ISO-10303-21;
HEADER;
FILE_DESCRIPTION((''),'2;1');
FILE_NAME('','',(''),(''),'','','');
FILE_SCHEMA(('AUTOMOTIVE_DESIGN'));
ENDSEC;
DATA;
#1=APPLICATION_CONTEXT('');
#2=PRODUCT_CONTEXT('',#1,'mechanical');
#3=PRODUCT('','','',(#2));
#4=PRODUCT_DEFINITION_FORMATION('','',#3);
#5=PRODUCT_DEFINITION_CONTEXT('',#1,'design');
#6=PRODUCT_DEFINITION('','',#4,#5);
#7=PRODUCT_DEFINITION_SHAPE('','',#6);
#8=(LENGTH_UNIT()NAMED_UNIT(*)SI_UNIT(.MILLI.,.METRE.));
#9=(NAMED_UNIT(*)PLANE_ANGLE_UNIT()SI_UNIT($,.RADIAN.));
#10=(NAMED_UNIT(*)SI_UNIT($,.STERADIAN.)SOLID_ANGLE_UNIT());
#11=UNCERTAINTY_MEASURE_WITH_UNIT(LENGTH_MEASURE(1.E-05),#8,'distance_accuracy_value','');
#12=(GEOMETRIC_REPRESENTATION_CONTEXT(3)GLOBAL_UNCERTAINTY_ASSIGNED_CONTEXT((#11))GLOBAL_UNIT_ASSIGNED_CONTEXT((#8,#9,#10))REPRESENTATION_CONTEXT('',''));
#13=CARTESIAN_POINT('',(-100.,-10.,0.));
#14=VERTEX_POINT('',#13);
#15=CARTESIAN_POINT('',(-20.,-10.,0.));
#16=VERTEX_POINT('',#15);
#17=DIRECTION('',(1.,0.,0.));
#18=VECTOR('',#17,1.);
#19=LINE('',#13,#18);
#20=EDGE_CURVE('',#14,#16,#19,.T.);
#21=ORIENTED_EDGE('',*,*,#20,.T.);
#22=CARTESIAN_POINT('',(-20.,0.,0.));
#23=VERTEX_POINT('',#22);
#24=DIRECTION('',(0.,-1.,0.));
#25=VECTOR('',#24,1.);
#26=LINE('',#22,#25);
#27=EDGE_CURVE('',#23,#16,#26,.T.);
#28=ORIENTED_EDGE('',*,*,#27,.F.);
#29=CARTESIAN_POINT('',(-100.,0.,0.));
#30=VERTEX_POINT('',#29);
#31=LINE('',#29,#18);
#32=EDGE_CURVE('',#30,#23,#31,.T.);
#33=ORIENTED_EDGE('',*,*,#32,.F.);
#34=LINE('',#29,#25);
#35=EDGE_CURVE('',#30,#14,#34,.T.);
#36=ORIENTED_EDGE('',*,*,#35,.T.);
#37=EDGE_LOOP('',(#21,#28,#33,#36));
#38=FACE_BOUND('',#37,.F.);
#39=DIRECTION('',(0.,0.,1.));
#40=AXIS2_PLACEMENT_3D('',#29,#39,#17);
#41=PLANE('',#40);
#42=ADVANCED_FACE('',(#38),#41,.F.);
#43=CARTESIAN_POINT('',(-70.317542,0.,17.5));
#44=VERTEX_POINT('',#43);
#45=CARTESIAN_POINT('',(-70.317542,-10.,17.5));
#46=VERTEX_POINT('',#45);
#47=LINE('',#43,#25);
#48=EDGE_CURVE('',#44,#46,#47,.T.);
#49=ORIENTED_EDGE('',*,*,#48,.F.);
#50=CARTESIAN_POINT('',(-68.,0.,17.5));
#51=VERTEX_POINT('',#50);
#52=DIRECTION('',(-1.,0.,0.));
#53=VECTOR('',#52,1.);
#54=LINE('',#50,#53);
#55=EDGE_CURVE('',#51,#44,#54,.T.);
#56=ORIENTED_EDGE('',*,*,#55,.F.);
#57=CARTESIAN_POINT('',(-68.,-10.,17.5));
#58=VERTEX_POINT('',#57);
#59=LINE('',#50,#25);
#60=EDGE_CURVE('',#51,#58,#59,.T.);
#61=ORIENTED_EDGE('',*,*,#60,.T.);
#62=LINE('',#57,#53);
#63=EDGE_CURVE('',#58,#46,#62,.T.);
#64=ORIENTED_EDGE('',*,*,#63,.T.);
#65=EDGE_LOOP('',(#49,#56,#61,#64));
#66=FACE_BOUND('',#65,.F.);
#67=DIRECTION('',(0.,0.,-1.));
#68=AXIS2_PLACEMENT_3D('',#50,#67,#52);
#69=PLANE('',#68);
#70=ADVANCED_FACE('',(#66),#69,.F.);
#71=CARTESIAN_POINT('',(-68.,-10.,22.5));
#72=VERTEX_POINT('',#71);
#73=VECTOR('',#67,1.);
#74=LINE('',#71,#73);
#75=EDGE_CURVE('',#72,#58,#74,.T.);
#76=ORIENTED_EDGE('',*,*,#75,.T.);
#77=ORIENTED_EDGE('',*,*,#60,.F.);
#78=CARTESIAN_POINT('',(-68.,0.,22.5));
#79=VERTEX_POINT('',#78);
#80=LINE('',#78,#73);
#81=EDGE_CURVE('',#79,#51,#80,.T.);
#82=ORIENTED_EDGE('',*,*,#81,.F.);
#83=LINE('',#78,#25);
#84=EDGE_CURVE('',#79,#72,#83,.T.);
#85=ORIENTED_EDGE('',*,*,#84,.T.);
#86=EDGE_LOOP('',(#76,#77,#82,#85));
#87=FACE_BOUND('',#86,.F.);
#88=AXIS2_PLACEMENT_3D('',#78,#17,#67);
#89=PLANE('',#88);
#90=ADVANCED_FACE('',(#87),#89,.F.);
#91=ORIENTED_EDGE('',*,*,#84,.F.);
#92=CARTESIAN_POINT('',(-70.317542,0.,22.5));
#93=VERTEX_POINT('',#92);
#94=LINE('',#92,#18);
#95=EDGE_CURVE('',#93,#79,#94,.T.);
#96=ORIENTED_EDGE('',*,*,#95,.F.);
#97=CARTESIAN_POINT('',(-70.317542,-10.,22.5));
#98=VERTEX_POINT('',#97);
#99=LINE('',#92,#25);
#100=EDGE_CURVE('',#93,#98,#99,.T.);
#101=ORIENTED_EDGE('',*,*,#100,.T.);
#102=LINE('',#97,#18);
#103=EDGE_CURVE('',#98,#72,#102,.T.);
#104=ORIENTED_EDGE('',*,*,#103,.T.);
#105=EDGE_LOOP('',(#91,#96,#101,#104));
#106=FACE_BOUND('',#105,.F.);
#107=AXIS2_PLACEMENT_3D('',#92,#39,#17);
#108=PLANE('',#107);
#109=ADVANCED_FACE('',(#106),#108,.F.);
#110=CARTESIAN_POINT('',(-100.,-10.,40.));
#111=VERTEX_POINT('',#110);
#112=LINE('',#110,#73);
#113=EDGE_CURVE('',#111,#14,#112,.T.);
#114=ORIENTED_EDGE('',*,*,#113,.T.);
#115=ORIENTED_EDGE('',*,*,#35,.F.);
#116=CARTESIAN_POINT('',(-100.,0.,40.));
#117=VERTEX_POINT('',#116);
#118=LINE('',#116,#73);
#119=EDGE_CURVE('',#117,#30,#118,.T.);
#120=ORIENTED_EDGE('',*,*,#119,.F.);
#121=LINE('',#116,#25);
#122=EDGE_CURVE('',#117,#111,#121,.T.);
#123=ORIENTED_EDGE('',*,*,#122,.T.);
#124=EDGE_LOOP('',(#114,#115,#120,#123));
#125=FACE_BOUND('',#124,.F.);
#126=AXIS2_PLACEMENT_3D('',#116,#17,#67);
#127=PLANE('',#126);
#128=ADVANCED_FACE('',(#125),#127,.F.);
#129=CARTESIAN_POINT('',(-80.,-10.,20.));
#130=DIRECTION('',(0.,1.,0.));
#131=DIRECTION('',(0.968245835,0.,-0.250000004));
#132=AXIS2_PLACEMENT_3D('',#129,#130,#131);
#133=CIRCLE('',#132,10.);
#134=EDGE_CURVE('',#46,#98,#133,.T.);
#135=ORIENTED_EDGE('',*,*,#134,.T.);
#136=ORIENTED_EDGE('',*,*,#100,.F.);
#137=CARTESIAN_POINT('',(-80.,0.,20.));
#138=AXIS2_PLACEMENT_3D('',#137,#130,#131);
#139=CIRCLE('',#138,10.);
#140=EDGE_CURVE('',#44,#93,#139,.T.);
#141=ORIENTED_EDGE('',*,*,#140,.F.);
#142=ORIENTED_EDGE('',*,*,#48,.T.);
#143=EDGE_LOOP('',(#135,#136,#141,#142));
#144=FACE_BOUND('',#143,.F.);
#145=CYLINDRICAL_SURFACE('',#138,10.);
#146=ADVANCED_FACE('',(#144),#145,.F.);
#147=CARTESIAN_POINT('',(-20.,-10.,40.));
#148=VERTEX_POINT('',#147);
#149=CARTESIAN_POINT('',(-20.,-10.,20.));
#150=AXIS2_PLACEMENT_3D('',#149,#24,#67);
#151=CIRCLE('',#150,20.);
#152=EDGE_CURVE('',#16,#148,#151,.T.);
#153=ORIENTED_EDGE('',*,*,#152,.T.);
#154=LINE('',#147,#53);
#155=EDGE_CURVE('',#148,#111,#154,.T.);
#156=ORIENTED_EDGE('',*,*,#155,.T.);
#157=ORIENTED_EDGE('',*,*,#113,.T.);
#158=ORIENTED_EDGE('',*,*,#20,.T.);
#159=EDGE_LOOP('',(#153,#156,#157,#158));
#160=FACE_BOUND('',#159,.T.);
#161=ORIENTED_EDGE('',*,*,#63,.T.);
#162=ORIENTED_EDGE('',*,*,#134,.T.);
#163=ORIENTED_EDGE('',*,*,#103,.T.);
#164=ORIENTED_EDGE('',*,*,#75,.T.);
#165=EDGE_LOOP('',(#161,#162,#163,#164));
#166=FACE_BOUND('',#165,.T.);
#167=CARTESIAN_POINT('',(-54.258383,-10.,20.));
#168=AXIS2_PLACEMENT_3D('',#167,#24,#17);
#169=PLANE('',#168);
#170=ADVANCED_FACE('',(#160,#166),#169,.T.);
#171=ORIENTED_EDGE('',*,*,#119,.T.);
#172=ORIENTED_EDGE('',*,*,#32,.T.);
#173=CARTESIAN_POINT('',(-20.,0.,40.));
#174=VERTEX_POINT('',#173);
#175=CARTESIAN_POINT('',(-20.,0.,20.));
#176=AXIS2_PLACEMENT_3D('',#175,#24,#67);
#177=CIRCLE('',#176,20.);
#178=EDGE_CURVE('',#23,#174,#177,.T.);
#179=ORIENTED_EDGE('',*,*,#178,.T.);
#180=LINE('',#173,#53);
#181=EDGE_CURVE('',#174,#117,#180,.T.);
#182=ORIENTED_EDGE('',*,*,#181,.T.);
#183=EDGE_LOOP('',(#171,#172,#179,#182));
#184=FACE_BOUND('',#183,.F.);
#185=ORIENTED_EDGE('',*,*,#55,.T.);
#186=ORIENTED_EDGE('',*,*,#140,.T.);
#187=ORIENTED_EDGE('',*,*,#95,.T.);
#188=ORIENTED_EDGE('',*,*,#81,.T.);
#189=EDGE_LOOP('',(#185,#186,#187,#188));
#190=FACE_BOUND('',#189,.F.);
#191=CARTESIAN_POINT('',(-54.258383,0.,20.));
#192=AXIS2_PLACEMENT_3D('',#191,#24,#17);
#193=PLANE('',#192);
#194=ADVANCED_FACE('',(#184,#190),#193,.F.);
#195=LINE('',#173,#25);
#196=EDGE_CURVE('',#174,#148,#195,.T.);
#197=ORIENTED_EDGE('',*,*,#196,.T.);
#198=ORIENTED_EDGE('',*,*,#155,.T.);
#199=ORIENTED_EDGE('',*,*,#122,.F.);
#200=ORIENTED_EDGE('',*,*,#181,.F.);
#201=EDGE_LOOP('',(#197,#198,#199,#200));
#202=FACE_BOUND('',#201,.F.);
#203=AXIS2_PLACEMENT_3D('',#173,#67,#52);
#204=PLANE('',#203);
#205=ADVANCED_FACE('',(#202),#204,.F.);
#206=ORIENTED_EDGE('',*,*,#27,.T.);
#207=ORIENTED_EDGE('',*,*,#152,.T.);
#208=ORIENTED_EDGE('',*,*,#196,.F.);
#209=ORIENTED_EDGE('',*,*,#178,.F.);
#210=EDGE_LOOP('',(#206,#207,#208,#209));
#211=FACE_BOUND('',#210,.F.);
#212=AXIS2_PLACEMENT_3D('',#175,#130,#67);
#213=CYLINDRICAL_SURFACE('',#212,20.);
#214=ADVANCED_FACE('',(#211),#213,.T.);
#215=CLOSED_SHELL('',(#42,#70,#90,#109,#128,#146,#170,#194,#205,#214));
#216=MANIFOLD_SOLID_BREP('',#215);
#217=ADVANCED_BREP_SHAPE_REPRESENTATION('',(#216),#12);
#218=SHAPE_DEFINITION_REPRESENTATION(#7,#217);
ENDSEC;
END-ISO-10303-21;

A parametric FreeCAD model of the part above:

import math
import FreeCAD as App
import Part
import Sketcher
Q = App.Units.Quantity

doc = App.newDocument("Part")
params = doc.addObject("Spreadsheet::Sheet", "Params")
for row, (alias, value) in enumerate([
    ("sketch1_radius", "20 mm"),
    ("sketch1_radius2", "10 mm"),
    ("sketch1_width", "80 mm"),
    ("sketch1_height", "5 mm"),
    ("pad1_length", "10 mm"),
], start=1):
    params.set(f"A{row}", alias)
    params.set(f"B{row}", "=" + value)
    params.setAlias(f"B{row}", alias)

body = doc.addObject("PartDesign::Body", "Body")

# Sketch on XZ plane
sketch1 = body.newObject("Sketcher::SketchObject", "Sketch")
sketch1.AttachmentSupport = (doc.getObject("XZ_Plane"), [""])
sketch1.MapMode = "FlatFace"
sketch1.addGeometry([
    Part.LineSegment(App.Vector(-100, 0, 0), App.Vector(-20, 0, 0)),  # 0
    Part.ArcOfCircle(Part.Circle(App.Vector(-20, 20, 0), App.Vector(0, 0, 1), 20), math.radians(-90), math.radians(90)),  # 1
    Part.LineSegment(App.Vector(-20, 40, 0), App.Vector(-100, 40, 0)),  # 2
    Part.LineSegment(App.Vector(-100, 40, 0), App.Vector(-100, 0, 0)),  # 3
    Part.LineSegment(App.Vector(-68, 17.5, 0), App.Vector(-70.317542, 17.5, 0)),  # 4
    Part.ArcOfCircle(Part.Circle(App.Vector(-80, 20, 0), App.Vector(0, 0, 1), 10), math.radians(14.477512), math.radians(345.522488)),  # 5
    Part.LineSegment(App.Vector(-70.317542, 22.5, 0), App.Vector(-68, 22.5, 0)),  # 6
    Part.LineSegment(App.Vector(-68, 22.5, 0), App.Vector(-68, 17.5, 0)),  # 7
], False)
sketch1.addConstraint([
    Sketcher.Constraint("Tangent", 0, 2, 1, 1),
    Sketcher.Constraint("Tangent", 1, 2, 2, 1),
    Sketcher.Constraint("Coincident", 2, 2, 3, 1),
    Sketcher.Constraint("Coincident", 3, 2, 0, 1),
    Sketcher.Constraint("Coincident", 4, 2, 5, 2),
    Sketcher.Constraint("Coincident", 5, 1, 6, 1),
    Sketcher.Constraint("Coincident", 6, 2, 7, 1),
    Sketcher.Constraint("Coincident", 7, 2, 4, 1),
    Sketcher.Constraint("Horizontal", 0),
    Sketcher.Constraint("Horizontal", 2),
    Sketcher.Constraint("Vertical", 3),
    Sketcher.Constraint("Horizontal", 4),
    Sketcher.Constraint("Horizontal", 6),
    Sketcher.Constraint("Vertical", 7),
    Sketcher.Constraint("PointOnObject", 0, 2, -1),
    Sketcher.Constraint("Horizontal", 1, 3, 5, 3),
    Sketcher.Constraint("Vertical", 4, 2, 5, 1),
    Sketcher.Constraint("Radius", 1, Q("20 mm")),
    Sketcher.Constraint("Radius", 5, Q("10 mm")),
    Sketcher.Constraint("DistanceX", 0, 1, 0, 2, Q("80 mm")),
    Sketcher.Constraint("DistanceY", 7, 2, 7, 1, Q("5 mm")),
    Sketcher.Constraint("DistanceX", 1, 3, -1, 1, Q("20 mm")),
    Sketcher.Constraint("DistanceX", 5, 3, -1, 1, Q("80 mm")),
    Sketcher.Constraint("DistanceX", 6, 2, -1, 1, Q("68 mm")),
])
sketch1.setExpression("Constraints[17]", "Params.sketch1_radius")
sketch1.setExpression("Constraints[18]", "Params.sketch1_radius2")
sketch1.setExpression("Constraints[19]", "Params.sketch1_width")
sketch1.setExpression("Constraints[20]", "Params.sketch1_height")
pad1 = body.newObject("PartDesign::Pad", "Pad")
pad1.Profile = sketch1
pad1.setExpression("Length", "Params.pad1_length")

doc.recompute()
